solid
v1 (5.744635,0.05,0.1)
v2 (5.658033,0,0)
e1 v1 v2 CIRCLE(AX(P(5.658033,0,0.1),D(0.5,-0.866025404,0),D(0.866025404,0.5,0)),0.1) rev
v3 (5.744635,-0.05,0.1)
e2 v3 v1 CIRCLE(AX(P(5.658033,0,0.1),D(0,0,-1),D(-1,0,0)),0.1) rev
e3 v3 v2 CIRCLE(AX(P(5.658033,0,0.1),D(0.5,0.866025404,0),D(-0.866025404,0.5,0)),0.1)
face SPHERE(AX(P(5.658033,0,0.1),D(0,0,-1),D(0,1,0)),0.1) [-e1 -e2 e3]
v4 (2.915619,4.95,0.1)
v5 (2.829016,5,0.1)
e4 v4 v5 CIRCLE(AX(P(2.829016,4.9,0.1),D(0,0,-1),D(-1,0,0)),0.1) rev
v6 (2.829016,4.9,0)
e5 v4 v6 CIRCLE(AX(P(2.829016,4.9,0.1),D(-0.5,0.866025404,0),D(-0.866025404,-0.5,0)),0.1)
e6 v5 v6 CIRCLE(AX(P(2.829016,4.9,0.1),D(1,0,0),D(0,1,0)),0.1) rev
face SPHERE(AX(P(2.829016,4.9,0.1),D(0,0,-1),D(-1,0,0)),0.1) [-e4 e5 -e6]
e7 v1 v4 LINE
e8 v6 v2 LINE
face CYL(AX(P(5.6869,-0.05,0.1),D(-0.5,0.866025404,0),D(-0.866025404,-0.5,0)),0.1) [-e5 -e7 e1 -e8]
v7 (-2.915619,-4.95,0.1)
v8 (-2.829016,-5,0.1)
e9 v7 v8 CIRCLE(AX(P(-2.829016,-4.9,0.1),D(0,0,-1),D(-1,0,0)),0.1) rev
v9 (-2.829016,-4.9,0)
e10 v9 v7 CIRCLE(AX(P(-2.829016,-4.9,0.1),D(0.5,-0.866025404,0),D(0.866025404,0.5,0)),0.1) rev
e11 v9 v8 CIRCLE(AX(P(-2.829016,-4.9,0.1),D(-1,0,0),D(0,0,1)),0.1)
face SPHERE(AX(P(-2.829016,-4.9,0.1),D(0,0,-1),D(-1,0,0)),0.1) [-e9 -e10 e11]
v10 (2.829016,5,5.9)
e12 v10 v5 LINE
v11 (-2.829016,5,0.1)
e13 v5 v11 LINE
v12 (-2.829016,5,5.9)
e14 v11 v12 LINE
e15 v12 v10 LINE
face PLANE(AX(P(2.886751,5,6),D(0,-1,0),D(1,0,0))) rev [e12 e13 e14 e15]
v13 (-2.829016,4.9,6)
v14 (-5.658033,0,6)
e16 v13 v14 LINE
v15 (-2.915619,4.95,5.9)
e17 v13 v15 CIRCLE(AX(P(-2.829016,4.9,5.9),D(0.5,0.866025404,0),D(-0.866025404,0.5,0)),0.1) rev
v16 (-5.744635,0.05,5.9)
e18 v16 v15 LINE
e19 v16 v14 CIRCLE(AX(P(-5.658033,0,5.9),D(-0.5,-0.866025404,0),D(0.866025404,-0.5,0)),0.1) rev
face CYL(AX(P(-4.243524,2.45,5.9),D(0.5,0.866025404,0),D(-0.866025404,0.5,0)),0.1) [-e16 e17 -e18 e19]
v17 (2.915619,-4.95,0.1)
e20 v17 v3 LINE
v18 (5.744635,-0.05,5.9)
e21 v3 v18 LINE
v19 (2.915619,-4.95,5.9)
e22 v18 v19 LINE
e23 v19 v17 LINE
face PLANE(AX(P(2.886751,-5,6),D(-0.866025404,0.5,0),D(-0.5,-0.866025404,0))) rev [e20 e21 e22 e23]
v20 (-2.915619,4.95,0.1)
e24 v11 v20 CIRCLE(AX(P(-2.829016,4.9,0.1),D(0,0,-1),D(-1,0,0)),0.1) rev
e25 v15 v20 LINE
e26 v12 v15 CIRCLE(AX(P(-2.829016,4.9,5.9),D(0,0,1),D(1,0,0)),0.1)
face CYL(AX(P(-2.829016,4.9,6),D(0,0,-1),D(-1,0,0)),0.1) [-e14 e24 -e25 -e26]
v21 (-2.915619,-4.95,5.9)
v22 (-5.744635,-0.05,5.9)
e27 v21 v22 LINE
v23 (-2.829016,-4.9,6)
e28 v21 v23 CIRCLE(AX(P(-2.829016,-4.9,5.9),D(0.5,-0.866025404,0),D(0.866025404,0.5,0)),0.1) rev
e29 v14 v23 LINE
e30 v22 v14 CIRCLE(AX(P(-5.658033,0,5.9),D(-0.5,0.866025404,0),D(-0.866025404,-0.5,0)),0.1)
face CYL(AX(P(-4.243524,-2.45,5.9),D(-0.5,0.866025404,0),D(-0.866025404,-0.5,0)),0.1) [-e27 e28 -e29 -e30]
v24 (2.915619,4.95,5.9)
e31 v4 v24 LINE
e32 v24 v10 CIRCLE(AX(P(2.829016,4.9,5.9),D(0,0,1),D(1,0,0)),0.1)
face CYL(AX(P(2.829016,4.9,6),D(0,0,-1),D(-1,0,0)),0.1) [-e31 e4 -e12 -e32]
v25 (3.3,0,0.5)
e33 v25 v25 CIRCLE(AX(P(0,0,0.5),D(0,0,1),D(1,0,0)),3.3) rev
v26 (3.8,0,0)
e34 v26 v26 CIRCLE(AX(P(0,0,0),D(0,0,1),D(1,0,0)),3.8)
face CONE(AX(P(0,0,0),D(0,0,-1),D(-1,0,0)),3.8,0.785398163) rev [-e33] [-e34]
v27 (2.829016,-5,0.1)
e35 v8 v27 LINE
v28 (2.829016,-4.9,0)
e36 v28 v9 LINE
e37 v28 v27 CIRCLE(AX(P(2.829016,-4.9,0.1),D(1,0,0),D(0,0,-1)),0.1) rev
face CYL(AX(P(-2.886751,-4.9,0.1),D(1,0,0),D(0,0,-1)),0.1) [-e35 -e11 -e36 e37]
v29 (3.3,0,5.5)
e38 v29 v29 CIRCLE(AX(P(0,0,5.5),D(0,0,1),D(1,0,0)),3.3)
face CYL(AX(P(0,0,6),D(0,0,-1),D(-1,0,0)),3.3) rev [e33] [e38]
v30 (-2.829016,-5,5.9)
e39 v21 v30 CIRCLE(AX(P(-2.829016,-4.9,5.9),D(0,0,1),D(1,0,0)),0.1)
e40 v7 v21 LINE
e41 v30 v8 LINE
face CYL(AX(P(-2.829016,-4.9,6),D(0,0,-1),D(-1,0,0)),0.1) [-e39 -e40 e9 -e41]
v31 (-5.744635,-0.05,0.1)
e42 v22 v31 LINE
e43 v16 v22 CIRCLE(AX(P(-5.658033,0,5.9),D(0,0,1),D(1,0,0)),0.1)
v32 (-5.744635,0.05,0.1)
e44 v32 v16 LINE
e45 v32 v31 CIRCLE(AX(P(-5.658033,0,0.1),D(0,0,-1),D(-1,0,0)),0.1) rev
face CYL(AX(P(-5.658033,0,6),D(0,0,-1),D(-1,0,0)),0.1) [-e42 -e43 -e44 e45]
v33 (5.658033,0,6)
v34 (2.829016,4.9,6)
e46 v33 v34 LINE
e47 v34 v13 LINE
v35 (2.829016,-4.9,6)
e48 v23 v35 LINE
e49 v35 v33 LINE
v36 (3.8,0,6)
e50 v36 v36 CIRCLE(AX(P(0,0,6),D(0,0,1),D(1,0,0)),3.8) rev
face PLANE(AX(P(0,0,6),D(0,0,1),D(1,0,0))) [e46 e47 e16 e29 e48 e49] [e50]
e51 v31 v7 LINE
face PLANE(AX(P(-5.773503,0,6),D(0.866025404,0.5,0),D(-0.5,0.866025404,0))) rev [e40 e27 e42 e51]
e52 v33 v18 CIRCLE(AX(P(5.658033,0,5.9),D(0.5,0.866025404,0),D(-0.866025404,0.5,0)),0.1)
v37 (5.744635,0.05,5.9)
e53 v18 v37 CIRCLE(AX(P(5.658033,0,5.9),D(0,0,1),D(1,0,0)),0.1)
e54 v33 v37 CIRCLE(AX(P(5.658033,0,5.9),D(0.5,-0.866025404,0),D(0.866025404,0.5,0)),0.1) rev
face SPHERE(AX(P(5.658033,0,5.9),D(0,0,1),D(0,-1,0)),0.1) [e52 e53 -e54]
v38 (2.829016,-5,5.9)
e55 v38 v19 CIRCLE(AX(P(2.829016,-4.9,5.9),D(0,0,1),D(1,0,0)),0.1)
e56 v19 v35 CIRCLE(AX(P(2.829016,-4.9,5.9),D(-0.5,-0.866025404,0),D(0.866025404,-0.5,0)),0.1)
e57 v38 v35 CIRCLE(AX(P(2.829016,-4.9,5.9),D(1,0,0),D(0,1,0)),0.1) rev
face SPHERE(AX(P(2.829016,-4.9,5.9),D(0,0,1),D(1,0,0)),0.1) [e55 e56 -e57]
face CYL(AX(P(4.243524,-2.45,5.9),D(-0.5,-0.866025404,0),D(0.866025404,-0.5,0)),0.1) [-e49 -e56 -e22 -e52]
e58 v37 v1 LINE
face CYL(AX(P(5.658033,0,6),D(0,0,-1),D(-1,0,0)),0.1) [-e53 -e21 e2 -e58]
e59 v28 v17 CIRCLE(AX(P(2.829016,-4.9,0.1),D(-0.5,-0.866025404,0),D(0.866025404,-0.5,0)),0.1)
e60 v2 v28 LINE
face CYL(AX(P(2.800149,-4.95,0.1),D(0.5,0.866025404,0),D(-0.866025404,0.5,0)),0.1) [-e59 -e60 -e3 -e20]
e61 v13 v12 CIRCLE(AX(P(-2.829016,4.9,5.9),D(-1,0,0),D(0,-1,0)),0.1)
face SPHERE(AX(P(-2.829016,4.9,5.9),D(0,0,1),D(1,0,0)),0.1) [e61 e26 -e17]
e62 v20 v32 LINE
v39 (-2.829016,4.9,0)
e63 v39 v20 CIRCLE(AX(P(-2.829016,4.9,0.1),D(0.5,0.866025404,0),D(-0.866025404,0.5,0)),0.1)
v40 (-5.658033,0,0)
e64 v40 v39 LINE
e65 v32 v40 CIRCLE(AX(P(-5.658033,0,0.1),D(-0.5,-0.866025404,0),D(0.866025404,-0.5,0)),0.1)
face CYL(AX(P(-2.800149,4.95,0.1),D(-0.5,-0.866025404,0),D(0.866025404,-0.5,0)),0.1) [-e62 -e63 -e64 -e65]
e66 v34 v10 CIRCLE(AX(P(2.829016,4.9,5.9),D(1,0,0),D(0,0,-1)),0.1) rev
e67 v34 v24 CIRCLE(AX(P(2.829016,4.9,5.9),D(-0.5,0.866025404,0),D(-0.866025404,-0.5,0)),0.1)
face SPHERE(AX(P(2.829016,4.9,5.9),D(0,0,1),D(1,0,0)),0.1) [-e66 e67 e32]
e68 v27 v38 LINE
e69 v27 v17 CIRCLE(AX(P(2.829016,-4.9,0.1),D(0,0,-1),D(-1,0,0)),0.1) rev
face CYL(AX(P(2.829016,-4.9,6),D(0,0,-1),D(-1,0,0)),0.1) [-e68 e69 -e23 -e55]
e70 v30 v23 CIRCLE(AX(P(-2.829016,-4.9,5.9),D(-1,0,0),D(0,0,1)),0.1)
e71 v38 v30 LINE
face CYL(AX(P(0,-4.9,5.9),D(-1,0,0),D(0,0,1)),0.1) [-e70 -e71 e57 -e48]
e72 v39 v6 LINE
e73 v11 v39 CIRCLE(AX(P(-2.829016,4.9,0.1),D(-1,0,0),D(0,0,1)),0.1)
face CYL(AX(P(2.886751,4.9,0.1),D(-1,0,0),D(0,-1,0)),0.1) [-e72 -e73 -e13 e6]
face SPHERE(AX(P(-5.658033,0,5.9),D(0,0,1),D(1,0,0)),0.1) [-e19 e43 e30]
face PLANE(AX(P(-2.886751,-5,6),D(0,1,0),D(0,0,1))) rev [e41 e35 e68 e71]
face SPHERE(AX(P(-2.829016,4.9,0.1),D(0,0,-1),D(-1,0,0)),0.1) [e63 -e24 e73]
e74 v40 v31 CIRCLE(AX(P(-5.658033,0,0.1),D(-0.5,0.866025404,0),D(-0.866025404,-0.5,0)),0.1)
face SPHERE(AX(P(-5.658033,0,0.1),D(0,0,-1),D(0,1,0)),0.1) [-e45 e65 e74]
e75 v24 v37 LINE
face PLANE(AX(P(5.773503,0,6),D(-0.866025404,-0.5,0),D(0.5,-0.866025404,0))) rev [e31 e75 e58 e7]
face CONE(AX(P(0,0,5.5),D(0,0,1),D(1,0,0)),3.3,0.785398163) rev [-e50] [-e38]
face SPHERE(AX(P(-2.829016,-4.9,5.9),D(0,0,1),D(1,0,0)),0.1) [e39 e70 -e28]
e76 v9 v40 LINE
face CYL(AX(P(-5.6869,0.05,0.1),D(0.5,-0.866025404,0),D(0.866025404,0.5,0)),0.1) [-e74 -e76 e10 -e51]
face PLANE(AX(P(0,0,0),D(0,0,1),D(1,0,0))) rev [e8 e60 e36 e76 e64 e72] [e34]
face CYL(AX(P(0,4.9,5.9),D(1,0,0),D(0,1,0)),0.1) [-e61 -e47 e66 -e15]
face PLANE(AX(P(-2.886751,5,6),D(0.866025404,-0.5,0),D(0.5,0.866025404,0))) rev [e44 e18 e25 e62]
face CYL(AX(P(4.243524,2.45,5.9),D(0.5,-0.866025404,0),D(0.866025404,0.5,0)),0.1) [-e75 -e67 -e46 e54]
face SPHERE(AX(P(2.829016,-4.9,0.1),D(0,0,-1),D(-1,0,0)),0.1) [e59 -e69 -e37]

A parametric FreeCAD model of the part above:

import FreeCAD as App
import Part
import Sketcher
Q = App.Units.Quantity


def edges_at(feature, points):
    """Names of the edges that pass closest to the given points."""
    edges = feature.Shape.Edges
    near = lambda p: min(range(len(edges)), key=lambda i: edges[i].distToShape(Part.Vertex(*p))[0])
    return sorted({f"Edge{near(p) + 1}" for p in points})

doc = App.newDocument("Part")
body = doc.addObject("PartDesign::Body", "Body")

sketch1 = doc.addObject("Sketcher::SketchObject", "Sketch")
body.addObject(sketch1)
sketch1.AttachmentSupport = (doc.XY_Plane, [""])
sketch1.MapMode = "FlatFace"
sketch1.addGeometry(Part.LineSegment(App.Vector(-2.9, -5, 0), App.Vector(2.9, -5, 0)), False)
sketch1.addGeometry(Part.LineSegment(App.Vector(2.9, -5, 0), App.Vector(5.8, 0, 0)), False)
sketch1.addGeometry(Part.LineSegment(App.Vector(5.8, 0, 0), App.Vector(2.9, 5, 0)), False)
sketch1.addGeometry(Part.LineSegment(App.Vector(2.9, 5, 0), App.Vector(-2.9, 5, 0)), False)
sketch1.addGeometry(Part.LineSegment(App.Vector(-2.9, 5, 0), App.Vector(-5.8, 0, 0)), False)
sketch1.addGeometry(Part.LineSegment(App.Vector(-5.8, 0, 0), App.Vector(-2.9, -5, 0)), False)
sketch1.addGeometry(Part.Circle(App.Vector(0, 0, 0), App.Vector(0, 0, 1), 3.3), False)
sketch1.addConstraint(Sketcher.Constraint("Coincident", 0, 2, 1, 1))
sketch1.addConstraint(Sketcher.Constraint("Coincident", 1, 2, 2, 1))
sketch1.addConstraint(Sketcher.Constraint("Coincident", 2, 2, 3, 1))
sketch1.addConstraint(Sketcher.Constraint("Coincident", 3, 2, 4, 1))
sketch1.addConstraint(Sketcher.Constraint("Coincident", 4, 2, 5, 1))
sketch1.addConstraint(Sketcher.Constraint("Coincident", 5, 2, 0, 1))
sketch1.addConstraint(Sketcher.Constraint("Horizontal", 0))
sketch1.addConstraint(Sketcher.Constraint("Horizontal", 3))
sketch1.addConstraint(Sketcher.Constraint("Coincident", 6, 3, -1, 1))
sketch1.addConstraint(Sketcher.Constraint("Symmetric", 0, 2, 3, 2, -1, 1))
sketch1.addConstraint(Sketcher.Constraint("Symmetric", 1, 2, 4, 2, -1, 1))
sketch1.addConstraint(Sketcher.Constraint("PointOnObject", 1, 2, -1))
sketch1.addConstraint(Sketcher.Constraint("Parallel", 2, 5))
sketch1.addConstraint(Sketcher.Constraint("Vertical", 0, 2, 2, 2))
sketch1.addConstraint(Sketcher.Constraint("Diameter", 6, 6.6))
sketch1.addConstraint(Sketcher.Constraint("Angle", 1, Q("60 deg")))
sketch1.addConstraint(Sketcher.Constraint("DistanceY", 0, 2, -1, 1, 5.0))
sketch1.addConstraint(Sketcher.Constraint("DistanceX", 0, 1, 0, 2, 5.773503))
pad1 = doc.addObject("PartDesign::Pad", "Pad")
body.addObject(pad1)
pad1.Profile = sketch1
pad1.Length = 6
doc.recompute()

fillet = doc.addObject("PartDesign::Fillet", "Fillet")
body.addObject(fillet)
fillet.Base = (pad1, edges_at(pad1, [
    (-5.774, 0, 3),
    (-2.887, 5, 3),
    (2.887, 5, 3),
    (5.774, 0, 3),
    (2.887, -5, 3),
    (-2.887, -5, 3),
    (4.33, -2.5, 6),
    (4.33, 2.5, 6),
    (0, 5, 6),
    (-4.33, 2.5, 6),
    (-4.33, -2.5, 6),
    (-4.33, 2.5, 0),
    (0, 5, 0),
    (4.33, 2.5, 0),
    (4.33, -2.5, 0),
    (0, -5, 0),
    (-4.33, -2.5, 0),
    (0, -5, 6),
]))
fillet.Radius = 0.1
doc.recompute()

chamfer = doc.addObject("PartDesign::Chamfer", "Chamfer")
body.addObject(chamfer)
chamfer.Base = (fillet, edges_at(fillet, [(-3.3, 0, 0), (-3.3, 0, 6)]))
chamfer.Size = 0.5

doc.recompute()
